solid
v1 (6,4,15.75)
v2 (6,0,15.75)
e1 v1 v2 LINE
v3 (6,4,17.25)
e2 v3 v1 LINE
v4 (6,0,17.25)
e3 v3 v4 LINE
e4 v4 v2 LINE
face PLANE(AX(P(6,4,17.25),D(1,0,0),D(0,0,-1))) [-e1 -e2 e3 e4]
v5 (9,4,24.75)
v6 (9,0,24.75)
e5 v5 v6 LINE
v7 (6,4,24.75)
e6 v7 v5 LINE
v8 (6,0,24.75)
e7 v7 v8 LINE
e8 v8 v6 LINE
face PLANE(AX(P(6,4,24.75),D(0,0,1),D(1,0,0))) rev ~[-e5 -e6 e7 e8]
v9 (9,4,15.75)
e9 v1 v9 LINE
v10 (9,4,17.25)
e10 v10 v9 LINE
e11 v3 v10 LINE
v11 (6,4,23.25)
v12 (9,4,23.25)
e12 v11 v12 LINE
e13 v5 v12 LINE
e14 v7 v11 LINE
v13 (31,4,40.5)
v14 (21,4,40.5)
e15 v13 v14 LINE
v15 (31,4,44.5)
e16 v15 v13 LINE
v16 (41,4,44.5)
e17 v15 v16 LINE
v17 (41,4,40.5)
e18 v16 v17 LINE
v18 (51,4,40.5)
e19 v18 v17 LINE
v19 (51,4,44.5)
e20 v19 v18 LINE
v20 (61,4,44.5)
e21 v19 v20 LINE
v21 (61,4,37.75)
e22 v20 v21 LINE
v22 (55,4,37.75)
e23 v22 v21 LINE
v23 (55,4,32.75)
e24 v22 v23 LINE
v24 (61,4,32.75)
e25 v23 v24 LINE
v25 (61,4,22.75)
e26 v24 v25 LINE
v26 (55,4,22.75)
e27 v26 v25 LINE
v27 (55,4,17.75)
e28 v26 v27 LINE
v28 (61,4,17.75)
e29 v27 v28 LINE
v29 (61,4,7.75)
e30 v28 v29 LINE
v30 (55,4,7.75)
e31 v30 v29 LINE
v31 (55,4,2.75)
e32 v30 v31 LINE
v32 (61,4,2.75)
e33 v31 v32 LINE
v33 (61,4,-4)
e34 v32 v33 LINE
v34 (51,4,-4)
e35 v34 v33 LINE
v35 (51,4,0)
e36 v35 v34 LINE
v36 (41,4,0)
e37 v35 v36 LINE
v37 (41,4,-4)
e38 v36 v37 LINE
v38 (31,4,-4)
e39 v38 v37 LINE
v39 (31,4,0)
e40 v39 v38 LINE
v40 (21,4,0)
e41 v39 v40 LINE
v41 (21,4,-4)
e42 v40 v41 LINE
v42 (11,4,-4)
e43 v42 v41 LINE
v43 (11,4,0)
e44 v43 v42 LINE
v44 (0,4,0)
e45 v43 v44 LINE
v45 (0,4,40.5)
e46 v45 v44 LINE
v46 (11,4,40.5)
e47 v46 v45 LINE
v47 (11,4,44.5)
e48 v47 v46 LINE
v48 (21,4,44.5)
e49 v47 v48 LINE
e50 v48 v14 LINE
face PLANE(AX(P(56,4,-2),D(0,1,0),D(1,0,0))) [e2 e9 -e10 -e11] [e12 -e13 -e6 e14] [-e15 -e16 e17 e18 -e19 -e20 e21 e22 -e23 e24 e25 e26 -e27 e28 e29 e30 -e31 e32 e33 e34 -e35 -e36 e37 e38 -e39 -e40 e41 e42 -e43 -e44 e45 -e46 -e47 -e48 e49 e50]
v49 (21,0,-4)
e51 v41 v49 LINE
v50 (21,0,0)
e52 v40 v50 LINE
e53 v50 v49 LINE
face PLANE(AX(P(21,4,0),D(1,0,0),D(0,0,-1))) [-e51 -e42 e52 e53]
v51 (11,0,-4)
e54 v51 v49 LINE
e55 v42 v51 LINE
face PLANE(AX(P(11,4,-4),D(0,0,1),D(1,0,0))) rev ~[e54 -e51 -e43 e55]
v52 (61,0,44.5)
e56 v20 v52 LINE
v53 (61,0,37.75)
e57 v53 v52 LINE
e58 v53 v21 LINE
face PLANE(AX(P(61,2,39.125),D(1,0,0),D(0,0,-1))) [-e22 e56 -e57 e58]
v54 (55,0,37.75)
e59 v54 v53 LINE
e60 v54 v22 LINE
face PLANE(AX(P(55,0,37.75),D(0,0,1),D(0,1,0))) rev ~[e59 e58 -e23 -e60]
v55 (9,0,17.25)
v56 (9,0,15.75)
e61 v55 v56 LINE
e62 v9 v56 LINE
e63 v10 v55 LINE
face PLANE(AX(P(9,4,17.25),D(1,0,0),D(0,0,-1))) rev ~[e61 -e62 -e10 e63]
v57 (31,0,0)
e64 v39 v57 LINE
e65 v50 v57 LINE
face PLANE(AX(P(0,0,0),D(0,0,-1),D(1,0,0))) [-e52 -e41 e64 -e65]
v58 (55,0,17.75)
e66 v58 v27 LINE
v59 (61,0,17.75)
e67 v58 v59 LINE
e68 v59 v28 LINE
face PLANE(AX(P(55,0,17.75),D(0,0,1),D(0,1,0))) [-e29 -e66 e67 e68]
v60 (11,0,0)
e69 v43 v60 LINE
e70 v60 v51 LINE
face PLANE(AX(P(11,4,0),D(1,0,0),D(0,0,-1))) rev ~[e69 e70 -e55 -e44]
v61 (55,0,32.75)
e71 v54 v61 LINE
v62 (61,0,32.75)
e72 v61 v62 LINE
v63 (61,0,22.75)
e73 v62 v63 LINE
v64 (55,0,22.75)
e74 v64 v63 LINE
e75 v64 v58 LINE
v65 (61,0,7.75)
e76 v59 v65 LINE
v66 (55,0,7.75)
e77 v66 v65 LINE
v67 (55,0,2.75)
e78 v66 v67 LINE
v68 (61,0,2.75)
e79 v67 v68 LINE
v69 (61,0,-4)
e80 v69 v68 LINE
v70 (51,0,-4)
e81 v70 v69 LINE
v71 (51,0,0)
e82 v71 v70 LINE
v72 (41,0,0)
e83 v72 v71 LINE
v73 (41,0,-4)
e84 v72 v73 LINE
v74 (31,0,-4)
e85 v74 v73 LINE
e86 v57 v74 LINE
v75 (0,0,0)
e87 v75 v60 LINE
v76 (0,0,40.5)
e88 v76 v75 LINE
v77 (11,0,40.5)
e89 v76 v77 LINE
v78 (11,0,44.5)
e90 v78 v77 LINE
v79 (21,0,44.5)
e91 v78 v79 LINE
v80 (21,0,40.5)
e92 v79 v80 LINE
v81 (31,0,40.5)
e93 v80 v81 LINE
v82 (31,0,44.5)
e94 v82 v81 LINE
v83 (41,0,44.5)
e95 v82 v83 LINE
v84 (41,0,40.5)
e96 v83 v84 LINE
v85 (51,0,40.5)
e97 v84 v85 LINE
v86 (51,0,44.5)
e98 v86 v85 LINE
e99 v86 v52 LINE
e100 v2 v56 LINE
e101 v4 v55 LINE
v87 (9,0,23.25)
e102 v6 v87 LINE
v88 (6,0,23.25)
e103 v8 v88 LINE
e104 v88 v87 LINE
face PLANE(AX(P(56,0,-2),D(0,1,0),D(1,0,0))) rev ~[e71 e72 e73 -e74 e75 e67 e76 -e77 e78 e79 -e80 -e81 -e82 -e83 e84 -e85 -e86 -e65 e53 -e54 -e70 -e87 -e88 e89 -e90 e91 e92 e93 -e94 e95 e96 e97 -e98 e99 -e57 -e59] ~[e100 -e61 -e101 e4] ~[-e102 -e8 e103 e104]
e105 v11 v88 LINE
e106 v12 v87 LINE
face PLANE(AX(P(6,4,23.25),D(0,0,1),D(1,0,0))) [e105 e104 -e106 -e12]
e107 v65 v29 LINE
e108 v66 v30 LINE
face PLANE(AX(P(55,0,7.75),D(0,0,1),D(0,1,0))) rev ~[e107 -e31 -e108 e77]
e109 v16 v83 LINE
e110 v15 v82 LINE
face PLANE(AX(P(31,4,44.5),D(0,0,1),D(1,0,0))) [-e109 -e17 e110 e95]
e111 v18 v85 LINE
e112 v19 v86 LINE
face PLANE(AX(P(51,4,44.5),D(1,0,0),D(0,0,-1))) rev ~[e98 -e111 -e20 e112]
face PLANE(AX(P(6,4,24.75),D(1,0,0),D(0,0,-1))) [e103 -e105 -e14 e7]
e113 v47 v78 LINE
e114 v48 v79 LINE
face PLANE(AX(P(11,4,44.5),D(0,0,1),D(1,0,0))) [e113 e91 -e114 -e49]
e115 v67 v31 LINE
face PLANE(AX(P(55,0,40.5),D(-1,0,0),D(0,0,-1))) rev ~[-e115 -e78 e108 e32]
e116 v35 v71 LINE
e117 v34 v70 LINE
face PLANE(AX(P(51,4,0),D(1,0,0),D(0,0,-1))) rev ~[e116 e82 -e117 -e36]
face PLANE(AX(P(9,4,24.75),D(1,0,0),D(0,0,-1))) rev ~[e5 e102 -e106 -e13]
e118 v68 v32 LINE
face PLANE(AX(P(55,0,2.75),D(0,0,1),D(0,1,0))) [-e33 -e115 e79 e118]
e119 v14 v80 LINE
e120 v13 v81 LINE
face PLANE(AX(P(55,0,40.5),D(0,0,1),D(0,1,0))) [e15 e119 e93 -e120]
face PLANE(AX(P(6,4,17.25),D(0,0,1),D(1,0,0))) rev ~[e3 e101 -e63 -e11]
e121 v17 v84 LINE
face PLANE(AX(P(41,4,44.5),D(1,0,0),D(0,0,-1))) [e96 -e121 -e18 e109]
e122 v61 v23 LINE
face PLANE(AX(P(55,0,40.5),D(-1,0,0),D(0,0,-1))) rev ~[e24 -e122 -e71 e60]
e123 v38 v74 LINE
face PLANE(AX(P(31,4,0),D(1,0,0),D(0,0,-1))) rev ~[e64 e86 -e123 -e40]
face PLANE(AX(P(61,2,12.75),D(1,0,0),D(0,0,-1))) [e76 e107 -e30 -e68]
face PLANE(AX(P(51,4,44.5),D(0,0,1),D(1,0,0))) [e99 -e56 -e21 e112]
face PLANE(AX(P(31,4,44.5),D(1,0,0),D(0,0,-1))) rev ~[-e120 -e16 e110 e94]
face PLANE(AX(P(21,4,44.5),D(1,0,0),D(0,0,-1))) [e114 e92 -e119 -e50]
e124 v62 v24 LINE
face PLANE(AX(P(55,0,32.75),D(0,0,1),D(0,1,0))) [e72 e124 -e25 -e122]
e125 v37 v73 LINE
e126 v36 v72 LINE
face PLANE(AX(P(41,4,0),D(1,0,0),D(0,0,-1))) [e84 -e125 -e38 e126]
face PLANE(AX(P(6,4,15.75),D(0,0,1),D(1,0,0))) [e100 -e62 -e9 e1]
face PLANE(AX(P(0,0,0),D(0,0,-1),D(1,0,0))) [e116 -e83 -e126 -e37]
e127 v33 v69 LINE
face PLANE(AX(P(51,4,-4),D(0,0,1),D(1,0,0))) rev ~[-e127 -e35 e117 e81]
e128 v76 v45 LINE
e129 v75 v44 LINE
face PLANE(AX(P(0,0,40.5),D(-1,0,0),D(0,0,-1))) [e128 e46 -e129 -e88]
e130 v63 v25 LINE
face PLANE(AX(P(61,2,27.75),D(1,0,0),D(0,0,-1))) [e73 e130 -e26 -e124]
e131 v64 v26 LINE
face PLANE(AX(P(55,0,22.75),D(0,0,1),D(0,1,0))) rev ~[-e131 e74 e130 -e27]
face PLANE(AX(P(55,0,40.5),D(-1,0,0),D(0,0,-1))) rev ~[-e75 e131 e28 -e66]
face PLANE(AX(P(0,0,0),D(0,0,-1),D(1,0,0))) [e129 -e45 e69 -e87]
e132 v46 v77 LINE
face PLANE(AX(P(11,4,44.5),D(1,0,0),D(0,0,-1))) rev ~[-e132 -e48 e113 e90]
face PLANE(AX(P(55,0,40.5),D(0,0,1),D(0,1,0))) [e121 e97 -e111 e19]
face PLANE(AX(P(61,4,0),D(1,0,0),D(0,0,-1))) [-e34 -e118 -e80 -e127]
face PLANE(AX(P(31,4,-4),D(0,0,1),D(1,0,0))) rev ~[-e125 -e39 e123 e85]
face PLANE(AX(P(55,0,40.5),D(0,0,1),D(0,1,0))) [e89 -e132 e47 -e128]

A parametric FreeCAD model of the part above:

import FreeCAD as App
import Part
import Sketcher

V = App.Vector


def add_polygon(sketch, points):
    """Adds a closed chain of lines whose ends are joined by coincident constraints."""
    first, n = sketch.GeometryCount, len(points)
    for a, b in zip(points, points[1:] + points[:1]):
        sketch.addGeometry(Part.LineSegment(App.Vector(*a, 0), App.Vector(*b, 0)), False)
    for i in range(n):
        sketch.addConstraint(Sketcher.Constraint("Coincident", first + i, 2, first + (i + 1) % n, 1))

doc = App.newDocument("Part")
body = doc.addObject("PartDesign::Body", "Body")

sketch1 = doc.addObject("Sketcher::SketchObject", "Sketch")
body.addObject(sketch1)
sketch1.AttachmentSupport = (doc.XZ_Plane, [""])
sketch1.MapMode = "FlatFace"
add_polygon(sketch1, [(0, 0), (0, 40), (55, 40), (55, 0)])
sketch1.addConstraint(Sketcher.Constraint("Vertical", 0))
sketch1.addConstraint(Sketcher.Constraint("Horizontal", 1))
sketch1.addConstraint(Sketcher.Constraint("Vertical", 2))
sketch1.addConstraint(Sketcher.Constraint("Horizontal", 3))
sketch1.addConstraint(Sketcher.Constraint("Coincident", 3, 2, -1, 1))
sketch1.addConstraint(Sketcher.Constraint("DistanceX", 1, 1, 1, 2, 55.0))
sketch1.addConstraint(Sketcher.Constraint("DistanceY", 0, 1, 0, 2, 40.5))
pad1 = doc.addObject("PartDesign::Pad", "Pad")
body.addObject(pad1)
pad1.Profile = sketch1
pad1.Length = 4
pad1.Reversed = True

sketch2 = doc.addObject("Sketcher::SketchObject", "Sketch001")
body.addObject(sketch2)
sketch2.AttachmentSupport = (doc.YZ_Plane, [""])
sketch2.MapMode = "FlatFace"
sketch2.AttachmentOffset = App.Placement(V(0, 0, 55), App.Rotation())
add_polygon(sketch2, [(4, 40.5), (0, 40.5), (0, 37.8), (4, 37.8)])
add_polygon(sketch2, [(4, 32.8), (0, 32.8), (0, 22.8), (4, 22.8)])
add_polygon(sketch2, [(4, 17.8), (0, 17.8), (0, 7.8), (4, 7.8)])
add_polygon(sketch2, [(4, 2.8), (0, 2.8), (0, 0), (4, 0)])
sketch2.addConstraint(Sketcher.Constraint("Horizontal", 0))
sketch2.addConstraint(Sketcher.Constraint("Vertical", 1))
sketch2.addConstraint(Sketcher.Constraint("Horizontal", 2))
sketch2.addConstraint(Sketcher.Constraint("Vertical", 3))
sketch2.addConstraint(Sketcher.Constraint("Horizontal", 4))
sketch2.addConstraint(Sketcher.Constraint("Vertical", 5))
sketch2.addConstraint(Sketcher.Constraint("Horizontal", 6))
sketch2.addConstraint(Sketcher.Constraint("Vertical", 7))
sketch2.addConstraint(Sketcher.Constraint("Horizontal", 8))
sketch2.addConstraint(Sketcher.Constraint("Vertical", 9))
sketch2.addConstraint(Sketcher.Constraint("Horizontal", 10))
sketch2.addConstraint(Sketcher.Constraint("Vertical", 11))
sketch2.addConstraint(Sketcher.Constraint("Horizontal", 12))
sketch2.addConstraint(Sketcher.Constraint("Vertical", 13))
sketch2.addConstraint(Sketcher.Constraint("Horizontal", 14))
sketch2.addConstraint(Sketcher.Constraint("Vertical", 15))
sketch2.addConstraint(Sketcher.Constraint("Coincident", 13, 2, -1, 1))
sketch2.addConstraint(Sketcher.Constraint("PointOnObject", 0, 2, -2))
sketch2.addConstraint(Sketcher.Constraint("PointOnObject", 4, 2, -2))
sketch2.addConstraint(Sketcher.Constraint("PointOnObject", 8, 2, -2))
sketch2.addConstraint(Sketcher.Constraint("Vertical", 3, 2, 6, 2))
sketch2.addConstraint(Sketcher.Constraint("Vertical", 7, 2, 10, 2))
sketch2.addConstraint(Sketcher.Constraint("Vertical", 11, 2, 14, 2))
sketch2.addConstraint(Sketcher.Constraint("Equal", 7, 9))
sketch2.addConstraint(Sketcher.Constraint("Equal", 3, 13))
sketch2.addConstraint(Sketcher.Constraint("DistanceX", 0, 2, 0, 1, 4.0))
sketch2.addConstraint(Sketcher.Constraint("DistanceY", 5, 2, 5, 1, 10.0))
sketch2.addConstraint(Sketcher.Constraint("DistanceY", 4, 2, 1, 2, 5.0))
sketch2.addConstraint(Sketcher.Constraint("DistanceY", 8, 2, 5, 2, 5.0))
sketch2.addConstraint(Sketcher.Constraint("DistanceY", 12, 2, 9, 2, 5.0))
sketch2.addConstraint(Sketcher.Constraint("DistanceY", 1, 2, 1, 1, 2.75))
pad2 = doc.addObject("PartDesign::Pad", "Pad001")
body.addObject(pad2)
pad2.Profile = sketch2
pad2.Length = 6

sketch3 = doc.addObject("Sketcher::SketchObject", "Sketch002")
body.addObject(sketch3)
sketch3.AttachmentSupport = (doc.XZ_Plane, [""])
sketch3.MapMode = "FlatFace"
sketch3.AttachmentOffset = App.Placement(V(0, 0, -4), App.Rotation())
add_polygon(sketch3, [(51, -4), (51, 0), (61, 0), (61, -4)])
add_polygon(sketch3, [(51, 40.5), (51, 44.5), (61, 44.5), (61, 40.5)])
sketch3.addConstraint(Sketcher.Constraint("Vertical", 0))
sketch3.addConstraint(Sketcher.Constraint("Horizontal", 1))
sketch3.addConstraint(Sketcher.Constraint("Vertical", 2))
sketch3.addConstraint(Sketcher.Constraint("Horizontal", 3))
sketch3.addConstraint(Sketcher.Constraint("Vertical", 4))
sketch3.addConstraint(Sketcher.Constraint("Horizontal", 5))
sketch3.addConstraint(Sketcher.Constraint("Vertical", 6))
sketch3.addConstraint(Sketcher.Constraint("Horizontal", 7))
sketch3.addConstraint(Sketcher.Constraint("PointOnObject", 0, 2, -1))
sketch3.addConstraint(Sketcher.Constraint("Vertical", 3, 2, 4, 2))
sketch3.addConstraint(Sketcher.Constraint("Vertical", 2, 2, 5, 2))
sketch3.addConstraint(Sketcher.Constraint("Equal", 2, 4))
sketch3.addConstraint(Sketcher.Constraint("DistanceX", 1, 1, 1, 2, 10.0))
sketch3.addConstraint(Sketcher.Constraint("DistanceY", 0, 1, 0, 2, 4.0))
sketch3.addConstraint(Sketcher.Constraint("DistanceX", -1, 1, 0, 2, 51.0))
sketch3.addConstraint(Sketcher.Constraint("DistanceY", -1, 1, 4, 2, 44.5))
pad3 = doc.addObject("PartDesign::Pad", "Pad002")
body.addObject(pad3)
pad3.Profile = sketch3
pad3.Length = 4
doc.recompute()

linearpattern = doc.addObject("PartDesign::LinearPattern", "LinearPattern")
body.addObject(linearpattern)
linearpattern.Originals = [pad3]
linearpattern.Direction = (doc.X_Axis, [""])
linearpattern.Mode = "offset"
linearpattern.Offset = 20
linearpattern.Occurrences = 3
linearpattern.Reversed = True
body.Tip = linearpattern

sketch4 = doc.addObject("Sketcher::SketchObject", "Sketch003")
body.addObject(sketch4)
sketch4.AttachmentSupport = (doc.XZ_Plane, [""])
sketch4.MapMode = "FlatFace"
sketch4.AttachmentOffset = App.Placement(V(0, 0, -4), App.Rotation())
add_polygon(sketch4, [(6, 23.2), (6, 24.8), (9, 24.8), (9, 23.2)])
add_polygon(sketch4, [(6, 15.8), (6, 17.2), (9, 17.2), (9, 15.8)])
sketch4.addConstraint(Sketcher.Constraint("Vertical", 0))
sketch4.addConstraint(Sketcher.Constraint("Horizontal", 1))
sketch4.addConstraint(Sketcher.Constraint("Vertical", 2))
sketch4.addConstraint(Sketcher.Constraint("Horizontal", 3))
sketch4.addConstraint(Sketcher.Constraint("Vertical", 4))
sketch4.addConstraint(Sketcher.Constraint("Horizontal", 5))
sketch4.addConstraint(Sketcher.Constraint("Vertical", 6))
sketch4.addConstraint(Sketcher.Constraint("Horizontal", 7))
sketch4.addConstraint(Sketcher.Constraint("Vertical", 3, 2, 4, 2))
sketch4.addConstraint(Sketcher.Constraint("Vertical", 2, 2, 5, 2))
sketch4.addConstraint(Sketcher.Constraint("Equal", 2, 4))
sketch4.addConstraint(Sketcher.Constraint("DistanceX", 1, 1, 1, 2, 3.0))
sketch4.addConstraint(Sketcher.Constraint("DistanceY", 0, 1, 0, 2, 1.5))
sketch4.addConstraint(Sketcher.Constraint("DistanceX", -1, 1, 0, 2, 6.0))
sketch4.addConstraint(Sketcher.Constraint("DistanceY", 4, 2, 3, 2, 6.0))
sketch4.addConstraint(Sketcher.Constraint("DistanceY", -1, 1, 0, 2, 24.75))
pocket1 = doc.addObject("PartDesign::Pocket", "Pocket")
body.addObject(pocket1)
pocket1.Profile = sketch4
pocket1.Type = "ThroughAll"
pocket1.Reversed = True

doc.recompute()
